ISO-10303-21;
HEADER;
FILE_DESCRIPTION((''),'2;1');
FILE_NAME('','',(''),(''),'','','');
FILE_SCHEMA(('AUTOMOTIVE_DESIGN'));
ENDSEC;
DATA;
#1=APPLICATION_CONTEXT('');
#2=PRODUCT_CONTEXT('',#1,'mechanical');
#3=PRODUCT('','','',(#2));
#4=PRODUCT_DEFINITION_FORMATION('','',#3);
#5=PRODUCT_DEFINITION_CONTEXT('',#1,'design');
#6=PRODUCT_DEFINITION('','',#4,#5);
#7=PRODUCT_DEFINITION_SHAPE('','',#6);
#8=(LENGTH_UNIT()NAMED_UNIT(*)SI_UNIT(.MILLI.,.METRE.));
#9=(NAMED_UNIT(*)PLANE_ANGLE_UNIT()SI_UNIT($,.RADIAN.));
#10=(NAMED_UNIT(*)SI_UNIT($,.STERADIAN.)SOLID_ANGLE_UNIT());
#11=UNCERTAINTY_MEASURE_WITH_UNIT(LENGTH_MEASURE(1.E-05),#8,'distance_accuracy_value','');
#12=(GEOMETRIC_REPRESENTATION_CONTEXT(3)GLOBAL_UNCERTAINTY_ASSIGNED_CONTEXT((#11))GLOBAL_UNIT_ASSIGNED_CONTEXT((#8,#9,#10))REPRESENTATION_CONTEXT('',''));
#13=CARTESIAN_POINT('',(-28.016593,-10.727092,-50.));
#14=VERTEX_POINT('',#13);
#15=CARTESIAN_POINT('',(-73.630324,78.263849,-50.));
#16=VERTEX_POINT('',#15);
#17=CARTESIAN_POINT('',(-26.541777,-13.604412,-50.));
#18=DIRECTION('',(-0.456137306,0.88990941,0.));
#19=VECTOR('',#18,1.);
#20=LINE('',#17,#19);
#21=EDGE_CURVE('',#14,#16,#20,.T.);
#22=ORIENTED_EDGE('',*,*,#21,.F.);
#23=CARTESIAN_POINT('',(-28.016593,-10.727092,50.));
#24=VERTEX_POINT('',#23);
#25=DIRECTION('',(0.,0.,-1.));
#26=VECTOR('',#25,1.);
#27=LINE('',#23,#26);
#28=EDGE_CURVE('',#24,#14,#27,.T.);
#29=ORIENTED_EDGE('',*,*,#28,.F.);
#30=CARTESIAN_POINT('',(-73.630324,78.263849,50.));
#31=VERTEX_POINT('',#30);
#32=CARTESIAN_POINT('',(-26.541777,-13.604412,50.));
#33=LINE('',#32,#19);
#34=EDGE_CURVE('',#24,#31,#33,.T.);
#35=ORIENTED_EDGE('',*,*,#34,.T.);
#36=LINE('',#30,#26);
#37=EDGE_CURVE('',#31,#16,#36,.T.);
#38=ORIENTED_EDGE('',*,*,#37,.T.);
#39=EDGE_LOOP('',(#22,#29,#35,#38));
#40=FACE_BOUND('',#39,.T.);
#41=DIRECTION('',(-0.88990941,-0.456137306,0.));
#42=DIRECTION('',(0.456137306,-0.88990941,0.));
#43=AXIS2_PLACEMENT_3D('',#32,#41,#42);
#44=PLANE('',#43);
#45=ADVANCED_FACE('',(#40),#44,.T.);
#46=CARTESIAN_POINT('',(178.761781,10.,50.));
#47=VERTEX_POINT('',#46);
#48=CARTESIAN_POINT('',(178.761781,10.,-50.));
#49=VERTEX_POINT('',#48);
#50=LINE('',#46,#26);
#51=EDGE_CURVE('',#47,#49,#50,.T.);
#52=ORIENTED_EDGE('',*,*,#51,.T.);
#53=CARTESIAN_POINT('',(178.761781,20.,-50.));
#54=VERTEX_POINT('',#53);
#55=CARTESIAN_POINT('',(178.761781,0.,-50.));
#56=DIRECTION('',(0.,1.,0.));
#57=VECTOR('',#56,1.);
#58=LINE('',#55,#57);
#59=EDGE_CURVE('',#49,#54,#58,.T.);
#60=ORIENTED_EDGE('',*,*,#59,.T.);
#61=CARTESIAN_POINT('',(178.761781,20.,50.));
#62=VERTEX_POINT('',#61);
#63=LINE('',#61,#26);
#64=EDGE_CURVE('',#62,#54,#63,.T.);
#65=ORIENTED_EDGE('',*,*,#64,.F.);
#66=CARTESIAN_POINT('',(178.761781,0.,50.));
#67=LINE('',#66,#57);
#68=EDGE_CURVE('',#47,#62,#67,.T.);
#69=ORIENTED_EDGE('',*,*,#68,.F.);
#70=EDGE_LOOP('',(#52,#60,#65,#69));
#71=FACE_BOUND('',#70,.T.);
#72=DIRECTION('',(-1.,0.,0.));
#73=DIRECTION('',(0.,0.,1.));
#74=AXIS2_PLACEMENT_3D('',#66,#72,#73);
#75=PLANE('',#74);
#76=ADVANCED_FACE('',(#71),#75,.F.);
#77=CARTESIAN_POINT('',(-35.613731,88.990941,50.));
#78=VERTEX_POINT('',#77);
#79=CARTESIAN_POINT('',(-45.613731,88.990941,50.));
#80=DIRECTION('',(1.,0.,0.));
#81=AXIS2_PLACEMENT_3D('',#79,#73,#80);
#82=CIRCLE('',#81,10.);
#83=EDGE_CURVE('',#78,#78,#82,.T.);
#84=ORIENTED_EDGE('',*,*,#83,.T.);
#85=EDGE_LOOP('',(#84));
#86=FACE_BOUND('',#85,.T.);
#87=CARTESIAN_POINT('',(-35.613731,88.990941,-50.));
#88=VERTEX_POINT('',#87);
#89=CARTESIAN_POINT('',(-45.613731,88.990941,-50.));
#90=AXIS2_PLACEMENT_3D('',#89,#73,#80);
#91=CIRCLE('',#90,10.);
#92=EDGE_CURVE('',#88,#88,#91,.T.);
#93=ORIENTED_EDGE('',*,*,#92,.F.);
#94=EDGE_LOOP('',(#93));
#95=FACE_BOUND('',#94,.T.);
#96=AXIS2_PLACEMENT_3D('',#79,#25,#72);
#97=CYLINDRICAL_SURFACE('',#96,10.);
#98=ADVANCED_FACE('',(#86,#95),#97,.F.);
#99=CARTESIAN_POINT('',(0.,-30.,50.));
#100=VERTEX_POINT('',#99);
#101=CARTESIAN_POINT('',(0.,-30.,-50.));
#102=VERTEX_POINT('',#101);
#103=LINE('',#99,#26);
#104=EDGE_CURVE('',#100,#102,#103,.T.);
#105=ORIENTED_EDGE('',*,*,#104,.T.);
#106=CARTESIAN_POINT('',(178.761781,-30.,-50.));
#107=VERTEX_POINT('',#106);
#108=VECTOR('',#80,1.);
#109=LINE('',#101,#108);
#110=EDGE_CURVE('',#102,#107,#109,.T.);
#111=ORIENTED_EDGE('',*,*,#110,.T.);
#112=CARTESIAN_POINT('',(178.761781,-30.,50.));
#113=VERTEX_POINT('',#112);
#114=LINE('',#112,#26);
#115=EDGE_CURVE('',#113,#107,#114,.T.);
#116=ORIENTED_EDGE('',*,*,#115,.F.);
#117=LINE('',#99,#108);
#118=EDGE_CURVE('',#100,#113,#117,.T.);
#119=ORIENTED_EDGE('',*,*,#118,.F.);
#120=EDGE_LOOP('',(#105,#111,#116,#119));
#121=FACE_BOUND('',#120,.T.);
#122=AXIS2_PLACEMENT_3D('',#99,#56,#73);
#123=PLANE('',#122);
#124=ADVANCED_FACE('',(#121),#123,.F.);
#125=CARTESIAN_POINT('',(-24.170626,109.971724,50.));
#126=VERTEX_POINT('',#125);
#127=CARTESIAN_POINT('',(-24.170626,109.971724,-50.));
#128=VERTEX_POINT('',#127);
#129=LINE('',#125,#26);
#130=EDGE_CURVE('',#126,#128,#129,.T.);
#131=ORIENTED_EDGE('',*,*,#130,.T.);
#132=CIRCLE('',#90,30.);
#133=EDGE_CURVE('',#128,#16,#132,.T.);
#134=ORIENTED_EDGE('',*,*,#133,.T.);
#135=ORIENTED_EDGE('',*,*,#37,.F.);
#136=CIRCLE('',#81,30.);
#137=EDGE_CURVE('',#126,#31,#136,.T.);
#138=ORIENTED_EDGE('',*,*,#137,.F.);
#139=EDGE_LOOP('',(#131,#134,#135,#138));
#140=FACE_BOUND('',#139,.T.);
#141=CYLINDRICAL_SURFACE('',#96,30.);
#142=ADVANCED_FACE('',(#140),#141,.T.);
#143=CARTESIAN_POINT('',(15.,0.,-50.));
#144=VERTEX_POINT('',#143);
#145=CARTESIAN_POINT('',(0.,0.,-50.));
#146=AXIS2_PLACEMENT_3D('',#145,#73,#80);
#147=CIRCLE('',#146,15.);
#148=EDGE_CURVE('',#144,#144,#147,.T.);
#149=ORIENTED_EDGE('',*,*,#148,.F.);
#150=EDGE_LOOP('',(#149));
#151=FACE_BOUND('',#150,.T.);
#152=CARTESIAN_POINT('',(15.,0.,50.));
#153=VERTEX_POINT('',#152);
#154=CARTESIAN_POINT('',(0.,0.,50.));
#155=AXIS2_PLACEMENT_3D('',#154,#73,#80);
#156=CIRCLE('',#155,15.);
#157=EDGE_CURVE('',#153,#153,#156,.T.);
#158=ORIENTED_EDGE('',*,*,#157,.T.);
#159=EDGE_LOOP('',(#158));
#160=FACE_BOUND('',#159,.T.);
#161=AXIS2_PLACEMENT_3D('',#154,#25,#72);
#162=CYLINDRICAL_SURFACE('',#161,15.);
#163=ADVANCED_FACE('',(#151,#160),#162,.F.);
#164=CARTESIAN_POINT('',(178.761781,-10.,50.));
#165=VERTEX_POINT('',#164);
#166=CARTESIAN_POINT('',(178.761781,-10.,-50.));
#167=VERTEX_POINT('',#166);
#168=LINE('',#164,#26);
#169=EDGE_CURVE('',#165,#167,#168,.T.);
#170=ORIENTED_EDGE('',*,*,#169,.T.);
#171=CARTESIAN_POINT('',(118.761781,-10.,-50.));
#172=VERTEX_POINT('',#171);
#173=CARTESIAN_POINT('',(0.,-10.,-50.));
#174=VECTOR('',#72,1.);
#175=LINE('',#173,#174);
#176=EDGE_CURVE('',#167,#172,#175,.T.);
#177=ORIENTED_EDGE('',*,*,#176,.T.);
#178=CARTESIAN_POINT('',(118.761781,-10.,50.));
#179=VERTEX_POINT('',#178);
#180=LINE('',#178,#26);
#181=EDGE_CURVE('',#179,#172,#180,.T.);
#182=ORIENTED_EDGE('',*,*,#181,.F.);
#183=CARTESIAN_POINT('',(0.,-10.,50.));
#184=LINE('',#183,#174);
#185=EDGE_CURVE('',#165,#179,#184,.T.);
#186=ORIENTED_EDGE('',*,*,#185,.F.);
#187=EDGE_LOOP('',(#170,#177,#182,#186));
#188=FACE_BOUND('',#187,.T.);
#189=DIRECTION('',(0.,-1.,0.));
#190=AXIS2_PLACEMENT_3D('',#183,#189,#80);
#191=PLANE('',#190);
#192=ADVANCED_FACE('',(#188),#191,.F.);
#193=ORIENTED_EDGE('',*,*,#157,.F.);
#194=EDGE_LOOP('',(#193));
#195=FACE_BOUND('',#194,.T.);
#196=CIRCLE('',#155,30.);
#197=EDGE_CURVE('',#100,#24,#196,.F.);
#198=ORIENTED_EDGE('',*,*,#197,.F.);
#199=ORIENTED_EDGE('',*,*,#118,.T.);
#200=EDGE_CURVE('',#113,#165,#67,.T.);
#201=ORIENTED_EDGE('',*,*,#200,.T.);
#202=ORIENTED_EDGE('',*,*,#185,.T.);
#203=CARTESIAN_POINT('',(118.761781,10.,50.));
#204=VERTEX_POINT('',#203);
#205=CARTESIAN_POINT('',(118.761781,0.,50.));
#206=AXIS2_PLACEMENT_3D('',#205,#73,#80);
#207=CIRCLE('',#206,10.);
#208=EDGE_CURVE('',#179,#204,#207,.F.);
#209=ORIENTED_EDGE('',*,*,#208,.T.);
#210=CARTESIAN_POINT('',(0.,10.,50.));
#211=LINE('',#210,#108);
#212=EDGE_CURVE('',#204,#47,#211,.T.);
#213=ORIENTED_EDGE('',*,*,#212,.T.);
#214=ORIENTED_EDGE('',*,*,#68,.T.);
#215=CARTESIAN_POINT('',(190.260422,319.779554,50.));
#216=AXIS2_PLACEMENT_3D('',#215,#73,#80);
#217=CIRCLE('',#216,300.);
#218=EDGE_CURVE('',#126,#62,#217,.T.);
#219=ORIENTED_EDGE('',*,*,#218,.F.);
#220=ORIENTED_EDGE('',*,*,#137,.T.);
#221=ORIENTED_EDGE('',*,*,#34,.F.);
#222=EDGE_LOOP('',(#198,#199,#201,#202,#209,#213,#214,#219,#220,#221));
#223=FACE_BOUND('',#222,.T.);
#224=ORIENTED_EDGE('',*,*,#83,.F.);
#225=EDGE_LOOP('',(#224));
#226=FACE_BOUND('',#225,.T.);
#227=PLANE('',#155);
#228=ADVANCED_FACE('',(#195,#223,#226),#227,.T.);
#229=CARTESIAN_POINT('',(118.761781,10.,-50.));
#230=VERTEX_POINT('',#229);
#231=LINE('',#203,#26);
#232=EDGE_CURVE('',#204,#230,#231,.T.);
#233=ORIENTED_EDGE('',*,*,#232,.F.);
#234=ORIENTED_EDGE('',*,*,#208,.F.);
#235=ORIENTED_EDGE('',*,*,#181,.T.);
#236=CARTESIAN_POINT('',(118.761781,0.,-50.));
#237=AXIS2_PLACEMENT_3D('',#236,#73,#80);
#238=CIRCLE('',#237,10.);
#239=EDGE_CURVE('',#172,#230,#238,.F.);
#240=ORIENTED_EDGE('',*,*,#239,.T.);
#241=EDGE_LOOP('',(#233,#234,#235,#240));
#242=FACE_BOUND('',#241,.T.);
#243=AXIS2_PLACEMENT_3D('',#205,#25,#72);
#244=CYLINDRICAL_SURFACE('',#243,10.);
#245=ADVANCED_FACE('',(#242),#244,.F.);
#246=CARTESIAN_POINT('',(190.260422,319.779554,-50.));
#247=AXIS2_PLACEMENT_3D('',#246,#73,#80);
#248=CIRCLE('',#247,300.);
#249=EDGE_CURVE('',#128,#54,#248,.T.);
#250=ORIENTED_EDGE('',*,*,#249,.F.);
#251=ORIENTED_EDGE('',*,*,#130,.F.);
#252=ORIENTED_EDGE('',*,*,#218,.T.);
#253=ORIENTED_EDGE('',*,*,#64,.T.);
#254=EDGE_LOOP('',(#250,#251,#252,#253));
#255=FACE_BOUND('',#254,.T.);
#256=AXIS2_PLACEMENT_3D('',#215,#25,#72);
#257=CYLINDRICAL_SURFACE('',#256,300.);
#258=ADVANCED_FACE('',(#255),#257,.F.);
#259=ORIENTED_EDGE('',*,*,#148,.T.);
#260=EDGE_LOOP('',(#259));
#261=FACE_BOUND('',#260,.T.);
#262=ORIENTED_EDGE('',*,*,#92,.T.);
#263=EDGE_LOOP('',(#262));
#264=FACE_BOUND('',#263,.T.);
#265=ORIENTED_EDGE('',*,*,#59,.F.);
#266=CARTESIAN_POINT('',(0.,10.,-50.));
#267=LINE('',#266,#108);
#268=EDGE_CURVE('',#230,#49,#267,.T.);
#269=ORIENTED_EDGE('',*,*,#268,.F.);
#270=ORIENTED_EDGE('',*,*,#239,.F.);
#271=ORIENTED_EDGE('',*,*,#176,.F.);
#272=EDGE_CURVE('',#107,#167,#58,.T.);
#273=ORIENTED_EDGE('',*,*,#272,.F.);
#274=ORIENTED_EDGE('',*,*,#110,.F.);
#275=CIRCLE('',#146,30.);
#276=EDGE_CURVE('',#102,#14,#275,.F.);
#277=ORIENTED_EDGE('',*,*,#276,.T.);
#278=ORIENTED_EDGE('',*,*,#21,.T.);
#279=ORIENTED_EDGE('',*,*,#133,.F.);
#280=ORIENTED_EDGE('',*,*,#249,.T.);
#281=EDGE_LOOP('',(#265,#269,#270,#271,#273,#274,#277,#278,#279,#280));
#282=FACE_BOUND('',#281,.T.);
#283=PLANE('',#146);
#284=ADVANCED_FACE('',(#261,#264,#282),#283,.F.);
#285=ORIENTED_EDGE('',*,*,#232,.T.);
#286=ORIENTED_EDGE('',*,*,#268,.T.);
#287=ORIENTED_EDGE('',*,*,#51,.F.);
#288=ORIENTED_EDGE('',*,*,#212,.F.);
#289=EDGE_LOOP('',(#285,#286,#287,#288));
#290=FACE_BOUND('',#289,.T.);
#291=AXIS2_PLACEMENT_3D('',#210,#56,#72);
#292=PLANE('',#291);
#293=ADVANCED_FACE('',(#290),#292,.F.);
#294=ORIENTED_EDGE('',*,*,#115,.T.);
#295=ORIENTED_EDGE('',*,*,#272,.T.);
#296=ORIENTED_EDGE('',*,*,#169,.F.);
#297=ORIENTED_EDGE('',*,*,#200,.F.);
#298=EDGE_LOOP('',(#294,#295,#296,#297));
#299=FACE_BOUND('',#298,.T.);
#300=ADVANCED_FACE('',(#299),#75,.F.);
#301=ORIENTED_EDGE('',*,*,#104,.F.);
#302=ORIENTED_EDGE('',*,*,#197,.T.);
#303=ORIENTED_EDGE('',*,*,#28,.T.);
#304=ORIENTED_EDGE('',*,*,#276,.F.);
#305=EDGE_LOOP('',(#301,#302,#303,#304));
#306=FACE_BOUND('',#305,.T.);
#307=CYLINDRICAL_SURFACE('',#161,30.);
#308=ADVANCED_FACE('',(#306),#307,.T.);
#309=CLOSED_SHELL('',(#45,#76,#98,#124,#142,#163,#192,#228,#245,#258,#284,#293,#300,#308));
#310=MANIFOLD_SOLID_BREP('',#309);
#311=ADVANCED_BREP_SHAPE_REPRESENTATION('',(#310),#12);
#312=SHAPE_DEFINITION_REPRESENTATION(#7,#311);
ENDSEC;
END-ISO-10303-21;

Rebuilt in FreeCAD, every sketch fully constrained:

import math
import FreeCAD as App
import Part
import Sketcher
from FreeCAD import Vector
Q = App.Units.Quantity

doc = App.newDocument("Part")
params = doc.addObject("Spreadsheet::Sheet", "Params")
for row, (alias, value) in enumerate([
    ("sketch1_diameter", "30 mm"),
    ("sketch1_diameter2", "20 mm"),
    ("sketch1_radius", "30 mm"),
    ("sketch1_radius2", "300 mm"),
    ("sketch1_width", "60 mm"),
    ("pad1_length", "100 mm"),
], start=1):
    params.set(f"A{row}", alias)
    params.set(f"B{row}", "=" + value)
    params.setAlias(f"B{row}", alias)

body = doc.addObject("PartDesign::Body", "Body")

sketch1 = body.newObject("Sketcher::SketchObject", "Sketch")
sketch1.AttachmentSupport = (doc.getObject("XY_Plane"), [""])
sketch1.MapMode = "FlatFace"
sketch1.addGeometry(Part.ArcOfCircle(Part.Circle(Vector(0, 0, 0), Vector(0, 0, 1), 30), math.radians(-159), math.radians(-90)), False)
sketch1.addGeometry(Part.LineSegment(Vector(0, -30, 0), Vector(179, -30, 0)), False)
sketch1.addGeometry(Part.LineSegment(Vector(179, -30, 0), Vector(179, -10, 0)), False)
sketch1.addGeometry(Part.LineSegment(Vector(179, -10, 0), Vector(119, -10, 0)), False)
sketch1.addGeometry(Part.ArcOfCircle(Part.Circle(Vector(119, 0, 0), Vector(0, 0, 1), 10), math.radians(90), math.radians(270)), False)
sketch1.addGeometry(Part.LineSegment(Vector(119, 10, 0), Vector(179, 10, 0)), False)
sketch1.addGeometry(Part.LineSegment(Vector(179, 10, 0), Vector(179, 20, 0)), False)
sketch1.addGeometry(Part.ArcOfCircle(Part.Circle(Vector(190, 320, 0), Vector(0, 0, 1), 300), math.radians(-136), math.radians(-92)), False)
sketch1.addGeometry(Part.ArcOfCircle(Part.Circle(Vector(-46, 89, 0), Vector(0, 0, 1), 30), math.radians(44), math.radians(201)), False)
sketch1.addGeometry(Part.LineSegment(Vector(-74, 78, 0), Vector(-71, 73, 0)), False)
sketch1.addGeometry(Part.LineSegment(Vector(-71, 73, 0), Vector(-28, -11, 0)), False)
sketch1.addGeometry(Part.Circle(Vector(0, 0, 0), Vector(0, 0, 1), 15), False)
sketch1.addGeometry(Part.Circle(Vector(-46, 89, 0), Vector(0, 0, 1), 10), False)
sketch1.addConstraint(Sketcher.Constraint("Tangent", 0, 2, 1, 1))
sketch1.addConstraint(Sketcher.Constraint("Coincident", 1, 2, 2, 1))
sketch1.addConstraint(Sketcher.Constraint("Coincident", 2, 2, 3, 1))
sketch1.addConstraint(Sketcher.Constraint("Tangent", 3, 2, 4, 2))
sketch1.addConstraint(Sketcher.Constraint("Tangent", 4, 1, 5, 1))
sketch1.addConstraint(Sketcher.Constraint("Coincident", 5, 2, 6, 1))
sketch1.addConstraint(Sketcher.Constraint("Coincident", 6, 2, 7, 2))
sketch1.addConstraint(Sketcher.Constraint("Tangent", 7, 1, 8, 1))
sketch1.addConstraint(Sketcher.Constraint("Coincident", 8, 2, 9, 1))
sketch1.addConstraint(Sketcher.Constraint("Coincident", 9, 2, 10, 1))
sketch1.addConstraint(Sketcher.Constraint("Coincident", 10, 2, 0, 1))
sketch1.addConstraint(Sketcher.Constraint("Horizontal", 1))
sketch1.addConstraint(Sketcher.Constraint("Vertical", 2))
sketch1.addConstraint(Sketcher.Constraint("Horizontal", 3))
sketch1.addConstraint(Sketcher.Constraint("Horizontal", 5))
sketch1.addConstraint(Sketcher.Constraint("Vertical", 6))
sketch1.addConstraint(Sketcher.Constraint("Coincident", 0, 3, -1, 1))
sketch1.addConstraint(Sketcher.Constraint("Coincident", 11, 3, -1, 1))
sketch1.addConstraint(Sketcher.Constraint("Coincident", 12, 3, 8, 3))
sketch1.addConstraint(Sketcher.Constraint("Equal", 0, 8))
sketch1.addConstraint(Sketcher.Constraint("Equal", 4, 12))
sketch1.addConstraint(Sketcher.Constraint("Symmetric", 2, 2, 5, 2, -1))
sketch1.addConstraint(Sketcher.Constraint("Parallel", 9, 10))
sketch1.addConstraint(Sketcher.Constraint("Diameter", 11, Q("30 mm")))
sketch1.addConstraint(Sketcher.Constraint("Diameter", 12, Q("20 mm")))
sketch1.addConstraint(Sketcher.Constraint("Radius", 0, Q("30 mm")))
sketch1.addConstraint(Sketcher.Constraint("Radius", 7, Q("300 mm")))
sketch1.addConstraint(Sketcher.Constraint("DistanceX", 3, 2, 3, 1, Q("60 mm")))
sketch1.addConstraint(Sketcher.Constraint("DistanceY", 6, 1, 6, 2, Q("10 mm")))
sketch1.addConstraint(Sketcher.Constraint("DistanceX", 1, 1, 1, 2, Q("178.761781 mm")))
sketch1.addConstraint(Sketcher.Constraint("DistanceY", 10, 2, 9, 2, Q("83.236301 mm")))
sketch1.addConstraint(Sketcher.Constraint("DistanceX", 8, 3, -1, 1, Q("45.613731 mm")))
sketch1.addConstraint(Sketcher.Constraint("DistanceY", -1, 1, 8, 3, Q("88.990941 mm")))
sketch1.addConstraint(Sketcher.Constraint("DistanceY", -1, 1, 8, 2, Q("78.263849 mm")))
sketch1.addConstraint(Sketcher.Constraint("DistanceX", 9, 2, -1, 1, Q("70.680691 mm")))
sketch1.setExpression("Constraints[23]", "Params.sketch1_diameter")
sketch1.setExpression("Constraints[24]", "Params.sketch1_diameter2")
sketch1.setExpression("Constraints[25]", "Params.sketch1_radius")
sketch1.setExpression("Constraints[26]", "Params.sketch1_radius2")
sketch1.setExpression("Constraints[27]", "Params.sketch1_width")
pad1 = body.newObject("PartDesign::Pad", "Pad")
pad1.Profile = sketch1
pad1.setExpression("Length", "Params.pad1_length")
pad1.Midplane = True

doc.recompute()
